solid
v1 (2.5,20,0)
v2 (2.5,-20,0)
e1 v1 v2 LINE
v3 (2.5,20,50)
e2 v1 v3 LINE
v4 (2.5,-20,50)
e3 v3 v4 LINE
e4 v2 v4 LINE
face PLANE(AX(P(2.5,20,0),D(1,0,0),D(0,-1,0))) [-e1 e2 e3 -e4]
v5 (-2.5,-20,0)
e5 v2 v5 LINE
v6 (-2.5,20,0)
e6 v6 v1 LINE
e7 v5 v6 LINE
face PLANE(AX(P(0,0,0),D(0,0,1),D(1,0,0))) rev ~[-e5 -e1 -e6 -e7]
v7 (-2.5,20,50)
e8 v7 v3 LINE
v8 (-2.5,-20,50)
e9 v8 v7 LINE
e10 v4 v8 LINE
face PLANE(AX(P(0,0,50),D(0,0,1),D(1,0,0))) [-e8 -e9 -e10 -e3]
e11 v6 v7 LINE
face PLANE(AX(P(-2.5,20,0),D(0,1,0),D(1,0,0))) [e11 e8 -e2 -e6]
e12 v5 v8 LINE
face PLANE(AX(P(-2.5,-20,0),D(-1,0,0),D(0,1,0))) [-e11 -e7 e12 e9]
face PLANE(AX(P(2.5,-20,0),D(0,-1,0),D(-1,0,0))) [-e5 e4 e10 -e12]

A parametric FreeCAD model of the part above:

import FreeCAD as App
import Part
import Sketcher

doc = App.newDocument("Part")
body = doc.addObject("PartDesign::Body", "Body")

sketch1 = body.newObject("Sketcher::SketchObject", "Sketch")
sketch1.AttachmentSupport = (doc.getObject("XY_Plane"), [""])
sketch1.MapMode = "FlatFace"
sketch1.addGeometry([
    Part.LineSegment(App.Vector(-2, -20, 0), App.Vector(2, -20, 0)),
    Part.LineSegment(App.Vector(2, -20, 0), App.Vector(2, 20, 0)),
    Part.LineSegment(App.Vector(2, 20, 0), App.Vector(-2, 20, 0)),
    Part.LineSegment(App.Vector(-2, 20, 0), App.Vector(-2, -20, 0)),
], False)
sketch1.addConstraint([
    Sketcher.Constraint("Coincident", 0, 2, 1, 1),
    Sketcher.Constraint("Coincident", 1, 2, 2, 1),
    Sketcher.Constraint("Coincident", 2, 2, 3, 1),
    Sketcher.Constraint("Coincident", 3, 2, 0, 1),
    Sketcher.Constraint("Horizontal", 0),
    Sketcher.Constraint("Vertical", 1),
    Sketcher.Constraint("Horizontal", 2),
    Sketcher.Constraint("Vertical", 3),
    Sketcher.Constraint("Symmetric", 0, 2, 2, 2, -1, 1),
    Sketcher.Constraint("DistanceX", 0, 1, 0, 2, 5.0),
    Sketcher.Constraint("DistanceY", 1, 1, 1, 2, 40.0),
])
pad1 = body.newObject("PartDesign::Pad", "Pad")
pad1.Profile = sketch1
pad1.Length = 50

doc.recompute()
